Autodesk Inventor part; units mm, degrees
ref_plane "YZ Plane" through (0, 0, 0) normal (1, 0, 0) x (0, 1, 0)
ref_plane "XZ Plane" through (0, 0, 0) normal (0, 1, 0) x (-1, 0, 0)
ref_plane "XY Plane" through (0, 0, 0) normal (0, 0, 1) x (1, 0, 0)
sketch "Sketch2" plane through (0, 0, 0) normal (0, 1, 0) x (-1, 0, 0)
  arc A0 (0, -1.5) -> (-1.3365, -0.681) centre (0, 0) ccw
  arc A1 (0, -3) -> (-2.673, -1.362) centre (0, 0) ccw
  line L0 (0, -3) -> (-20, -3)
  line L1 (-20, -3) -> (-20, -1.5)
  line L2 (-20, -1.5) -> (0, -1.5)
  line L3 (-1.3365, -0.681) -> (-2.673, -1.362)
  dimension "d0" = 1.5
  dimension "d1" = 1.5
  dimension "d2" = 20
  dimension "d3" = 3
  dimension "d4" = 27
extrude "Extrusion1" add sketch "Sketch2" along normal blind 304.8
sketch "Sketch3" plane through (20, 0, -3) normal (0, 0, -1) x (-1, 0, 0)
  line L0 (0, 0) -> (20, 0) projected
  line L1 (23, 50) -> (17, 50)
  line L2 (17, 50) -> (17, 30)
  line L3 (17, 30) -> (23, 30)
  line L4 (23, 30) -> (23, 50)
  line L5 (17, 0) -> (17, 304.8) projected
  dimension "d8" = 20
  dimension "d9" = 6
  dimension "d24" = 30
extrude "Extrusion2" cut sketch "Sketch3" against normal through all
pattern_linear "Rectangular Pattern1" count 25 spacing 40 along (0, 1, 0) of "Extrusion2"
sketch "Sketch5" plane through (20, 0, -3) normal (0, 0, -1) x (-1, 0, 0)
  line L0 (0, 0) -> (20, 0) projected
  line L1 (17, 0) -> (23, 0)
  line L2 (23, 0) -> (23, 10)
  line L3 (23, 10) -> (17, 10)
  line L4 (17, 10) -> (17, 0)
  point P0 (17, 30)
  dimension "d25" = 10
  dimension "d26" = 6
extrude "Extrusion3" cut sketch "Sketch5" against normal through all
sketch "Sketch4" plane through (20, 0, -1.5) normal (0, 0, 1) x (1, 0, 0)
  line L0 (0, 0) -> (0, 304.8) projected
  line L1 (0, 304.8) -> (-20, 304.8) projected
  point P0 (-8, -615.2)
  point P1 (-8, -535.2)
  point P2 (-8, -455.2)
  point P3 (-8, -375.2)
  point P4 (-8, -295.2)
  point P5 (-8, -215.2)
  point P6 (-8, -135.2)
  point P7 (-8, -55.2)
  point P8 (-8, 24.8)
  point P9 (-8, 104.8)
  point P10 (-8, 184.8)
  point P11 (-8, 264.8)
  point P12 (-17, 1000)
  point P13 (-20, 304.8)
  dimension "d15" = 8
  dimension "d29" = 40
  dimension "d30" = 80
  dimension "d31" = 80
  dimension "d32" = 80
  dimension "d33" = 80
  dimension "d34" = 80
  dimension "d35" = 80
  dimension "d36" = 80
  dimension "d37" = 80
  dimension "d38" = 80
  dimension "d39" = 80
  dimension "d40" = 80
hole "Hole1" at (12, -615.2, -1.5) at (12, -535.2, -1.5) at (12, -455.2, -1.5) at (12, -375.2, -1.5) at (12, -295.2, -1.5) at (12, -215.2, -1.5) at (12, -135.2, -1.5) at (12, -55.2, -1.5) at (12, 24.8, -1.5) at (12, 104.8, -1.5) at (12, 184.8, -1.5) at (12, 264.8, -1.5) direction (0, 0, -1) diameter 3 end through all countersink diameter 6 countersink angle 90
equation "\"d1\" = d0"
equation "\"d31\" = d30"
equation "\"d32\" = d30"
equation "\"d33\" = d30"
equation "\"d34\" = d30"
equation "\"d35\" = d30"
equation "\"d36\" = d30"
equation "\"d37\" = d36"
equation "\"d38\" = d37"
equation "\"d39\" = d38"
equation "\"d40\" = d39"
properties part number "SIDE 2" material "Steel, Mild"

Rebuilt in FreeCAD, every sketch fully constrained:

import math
import FreeCAD as App
import Part
import Sketcher

V = App.Vector
Q = App.Units.Quantity


def add_polygon(sketch, points):
    """Adds a closed chain of lines whose ends are joined by coincident constraints."""
    first, n = sketch.GeometryCount, len(points)
    for a, b in zip(points, points[1:] + points[:1]):
        sketch.addGeometry(Part.LineSegment(App.Vector(*a, 0), App.Vector(*b, 0)), False)
    for i in range(n):
        sketch.addConstraint(Sketcher.Constraint("Coincident", first + i, 2, first + (i + 1) % n, 1))

doc = App.newDocument("Part")
body = doc.addObject("PartDesign::Body", "Body")

sketch1 = body.newObject("Sketcher::SketchObject", "Sketch")
sketch1.AttachmentSupport = (doc.getObject("XZ_Plane"), [""])
sketch1.MapMode = "FlatFace"
sketch1.addGeometry(Part.ArcOfCircle(Part.Circle(V(0, 0, 0), V(0, 0, 1), 1.5), math.radians(-27), math.radians(270)), False)
sketch1.addGeometry(Part.LineSegment(V(0, -1.5, 0), V(20, -1.5, 0)), False)
sketch1.addGeometry(Part.LineSegment(V(20, -1.5, 0), V(20, -3, 0)), False)
sketch1.addGeometry(Part.LineSegment(V(20, -3, 0), V(0, -3, 0)), False)
sketch1.addGeometry(Part.ArcOfCircle(Part.Circle(V(0, 0, 0), V(0, 0, 1), 3), math.radians(-27), math.radians(270)), False)
sketch1.addGeometry(Part.LineSegment(V(2.7, -1.4, 0), V(1.3, -0.7, 0)), False)
sketch1.addConstraint(Sketcher.Constraint("Tangent", 0, 2, 1, 1))
sketch1.addConstraint(Sketcher.Constraint("Coincident", 1, 2, 2, 1))
sketch1.addConstraint(Sketcher.Constraint("Coincident", 2, 2, 3, 1))
sketch1.addConstraint(Sketcher.Constraint("Tangent", 3, 2, 4, 2))
sketch1.addConstraint(Sketcher.Constraint("Coincident", 4, 1, 5, 1))
sketch1.addConstraint(Sketcher.Constraint("Coincident", 5, 2, 0, 1))
sketch1.addConstraint(Sketcher.Constraint("Horizontal", 1))
sketch1.addConstraint(Sketcher.Constraint("Vertical", 2))
sketch1.addConstraint(Sketcher.Constraint("Horizontal", 3))
sketch1.addConstraint(Sketcher.Constraint("Coincident", 0, 3, -1, 1))
sketch1.addConstraint(Sketcher.Constraint("Coincident", 4, 3, -1, 1))
sketch1.addConstraint(Sketcher.Constraint("Radius", 4, Q("3 mm")))
sketch1.addConstraint(Sketcher.Constraint("Radius", 0, Q("1.5 mm")))
sketch1.addConstraint(Sketcher.Constraint("DistanceX", 1, 1, 1, 2, Q("20 mm")))
sketch1.addConstraint(Sketcher.Constraint("Angle", 5, Q("152.9993 deg")))
sketch1.addConstraint(Sketcher.Constraint("DistanceX", -1, 1, 4, 1, Q("2.673 mm")))
pad1 = body.newObject("PartDesign::Pad", "Pad")
pad1.Profile = sketch1
pad1.Length = 304.8
pad1.Reversed = True

sketch2 = body.newObject("Sketcher::SketchObject", "Sketch001")
sketch2.AttachmentSupport = (doc.getObject("XY_Plane"), [""])
sketch2.MapMode = "FlatFace"
sketch2.AttachmentOffset = App.Placement(V(0, 0, -3), App.Rotation())
add_polygon(sketch2, [(-3, 30), (-3, 50), (3, 50), (3, 30)])
sketch2.addConstraint(Sketcher.Constraint("Vertical", 0))
sketch2.addConstraint(Sketcher.Constraint("Horizontal", 1))
sketch2.addConstraint(Sketcher.Constraint("Vertical", 2))
sketch2.addConstraint(Sketcher.Constraint("Horizontal", 3))
sketch2.addConstraint(Sketcher.Constraint("DistanceX", 1, 1, 1, 2, Q("6 mm")))
sketch2.addConstraint(Sketcher.Constraint("DistanceY", 0, 1, 0, 2, Q("20 mm")))
sketch2.addConstraint(Sketcher.Constraint("DistanceY", -1, 1, 2, 2, Q("30 mm")))
sketch2.addConstraint(Sketcher.Constraint("DistanceX", 0, 2, -1, 1, Q("3 mm")))
pocket1 = body.newObject("PartDesign::Pocket", "Pocket")
pocket1.Profile = sketch2
pocket1.Type = "ThroughAll"
pocket1.Reversed = True
doc.recompute()

linearpattern = body.newObject("PartDesign::LinearPattern", "LinearPattern")
linearpattern.Originals = [pocket1]
linearpattern.Direction = (doc.getObject("Y_Axis"), [""])
linearpattern.Mode = "offset"
linearpattern.Offset = 40
linearpattern.Occurrences = 25
body.Tip = linearpattern

sketch3 = body.newObject("Sketcher::SketchObject", "Sketch002")
sketch3.AttachmentSupport = (doc.getObject("XY_Plane"), [""])
sketch3.MapMode = "FlatFace"
sketch3.AttachmentOffset = App.Placement(V(0, 0, -3), App.Rotation())
add_polygon(sketch3, [(3, 10), (3, 0), (-3, 0), (-3, 10)])
sketch3.addConstraint(Sketcher.Constraint("Vertical", 0))
sketch3.addConstraint(Sketcher.Constraint("Horizontal", 1))
sketch3.addConstraint(Sketcher.Constraint("Vertical", 2))
sketch3.addConstraint(Sketcher.Constraint("Horizontal", 3))
sketch3.addConstraint(Sketcher.Constraint("Symmetric", 0, 2, 1, 2, -1, 1))
sketch3.addConstraint(Sketcher.Constraint("DistanceX", 1, 2, 1, 1, Q("6 mm")))
sketch3.addConstraint(Sketcher.Constraint("DistanceY", 0, 2, 0, 1, Q("10 mm")))
pocket2 = body.newObject("PartDesign::Pocket", "Pocket001")
pocket2.Profile = sketch3
pocket2.Type = "ThroughAll"
pocket2.Reversed = True

sketch4 = body.newObject("Sketcher::SketchObject", "Sketch003")
sketch4.AttachmentSupport = (doc.getObject("XY_Plane"), [""])
sketch4.MapMode = "FlatFace"
sketch4.AttachmentOffset = App.Placement(V(0, 0, -1.5), App.Rotation())
sketch4.addGeometry(Part.Circle(V(12, -615.2, 0), V(0, 0, 1), 1.5), False)
sketch4.addGeometry(Part.Circle(V(12, -535.2, 0), V(0, 0, 1), 1.5), False)
sketch4.addGeometry(Part.Circle(V(12, -455.2, 0), V(0, 0, 1), 1.5), False)
sketch4.addGeometry(Part.Circle(V(12, -375.2, 0), V(0, 0, 1), 1.5), False)
sketch4.addGeometry(Part.Circle(V(12, -295.2, 0), V(0, 0, 1), 1.5), False)
sketch4.addGeometry(Part.Circle(V(12, -215.2, 0), V(0, 0, 1), 1.5), False)
sketch4.addGeometry(Part.Circle(V(12, -135.2, 0), V(0, 0, 1), 1.5), False)
sketch4.addGeometry(Part.Circle(V(12, -55.2, 0), V(0, 0, 1), 1.5), False)
sketch4.addGeometry(Part.Circle(V(12, 24.8, 0), V(0, 0, 1), 1.5), False)
sketch4.addGeometry(Part.Circle(V(12, 104.8, 0), V(0, 0, 1), 1.5), False)
sketch4.addGeometry(Part.Circle(V(12, 184.8, 0), V(0, 0, 1), 1.5), False)
sketch4.addGeometry(Part.Circle(V(12, 264.8, 0), V(0, 0, 1), 1.5), False)
sketch4.addConstraint(Sketcher.Constraint("Equal", 0, 1))
sketch4.addConstraint(Sketcher.Constraint("Equal", 1, 2))
sketch4.addConstraint(Sketcher.Constraint("Equal", 2, 3))
sketch4.addConstraint(Sketcher.Constraint("Equal", 3, 4))
sketch4.addConstraint(Sketcher.Constraint("Equal", 4, 5))
sketch4.addConstraint(Sketcher.Constraint("Equal", 5, 6))
sketch4.addConstraint(Sketcher.Constraint("Equal", 6, 7))
sketch4.addConstraint(Sketcher.Constraint("Equal", 7, 8))
sketch4.addConstraint(Sketcher.Constraint("Equal", 8, 9))
sketch4.addConstraint(Sketcher.Constraint("Equal", 9, 10))
sketch4.addConstraint(Sketcher.Constraint("Equal", 10, 11))
sketch4.addConstraint(Sketcher.Constraint("Vertical", 0, 3, 1, 3))
sketch4.addConstraint(Sketcher.Constraint("Vertical", 1, 3, 2, 3))
sketch4.addConstraint(Sketcher.Constraint("Vertical", 2, 3, 3, 3))
sketch4.addConstraint(Sketcher.Constraint("Vertical", 3, 3, 4, 3))
sketch4.addConstraint(Sketcher.Constraint("Vertical", 4, 3, 5, 3))
sketch4.addConstraint(Sketcher.Constraint("Vertical", 5, 3, 6, 3))
sketch4.addConstraint(Sketcher.Constraint("Vertical", 6, 3, 7, 3))
sketch4.addConstraint(Sketcher.Constraint("Vertical", 7, 3, 8, 3))
sketch4.addConstraint(Sketcher.Constraint("Vertical", 8, 3, 9, 3))
sketch4.addConstraint(Sketcher.Constraint("Vertical", 9, 3, 10, 3))
sketch4.addConstraint(Sketcher.Constraint("Vertical", 10, 3, 11, 3))
sketch4.addConstraint(Sketcher.Constraint("Diameter", 0, Q("3 mm")))
sketch4.addConstraint(Sketcher.Constraint("DistanceX", -1, 1, 0, 3, Q("12 mm")))
sketch4.addConstraint(Sketcher.Constraint("DistanceY", 0, 3, 1, 3, Q("80 mm")))
sketch4.addConstraint(Sketcher.Constraint("DistanceY", 1, 3, 2, 3, Q("80 mm")))
sketch4.addConstraint(Sketcher.Constraint("DistanceY", 2, 3, 3, 3, Q("80 mm")))
sketch4.addConstraint(Sketcher.Constraint("DistanceY", 3, 3, 4, 3, Q("80 mm")))
sketch4.addConstraint(Sketcher.Constraint("DistanceY", 4, 3, 5, 3, Q("80 mm")))
sketch4.addConstraint(Sketcher.Constraint("DistanceY", 5, 3, 6, 3, Q("80 mm")))
sketch4.addConstraint(Sketcher.Constraint("DistanceY", 6, 3, 7, 3, Q("80 mm")))
sketch4.addConstraint(Sketcher.Constraint("DistanceY", 7, 3, 8, 3, Q("80 mm")))
sketch4.addConstraint(Sketcher.Constraint("DistanceY", 8, 3, 9, 3, Q("80 mm")))
sketch4.addConstraint(Sketcher.Constraint("DistanceY", 9, 3, 10, 3, Q("80 mm")))
sketch4.addConstraint(Sketcher.Constraint("DistanceY", 10, 3, 11, 3, Q("80 mm")))
sketch4.addConstraint(Sketcher.Constraint("DistanceY", 0, 3, -1, 1, Q("615.2 mm")))
doc.recompute()
hole = body.newObject("PartDesign::Hole", "Hole")
hole.Profile = sketch4
hole.ThreadType = "None"
hole.Diameter = 3
hole.DepthType = "ThroughAll"
hole.HoleCutType = "Countersink"
hole.HoleCutDiameter = 6
hole.HoleCutCountersinkAngle = 90

doc.recompute()
